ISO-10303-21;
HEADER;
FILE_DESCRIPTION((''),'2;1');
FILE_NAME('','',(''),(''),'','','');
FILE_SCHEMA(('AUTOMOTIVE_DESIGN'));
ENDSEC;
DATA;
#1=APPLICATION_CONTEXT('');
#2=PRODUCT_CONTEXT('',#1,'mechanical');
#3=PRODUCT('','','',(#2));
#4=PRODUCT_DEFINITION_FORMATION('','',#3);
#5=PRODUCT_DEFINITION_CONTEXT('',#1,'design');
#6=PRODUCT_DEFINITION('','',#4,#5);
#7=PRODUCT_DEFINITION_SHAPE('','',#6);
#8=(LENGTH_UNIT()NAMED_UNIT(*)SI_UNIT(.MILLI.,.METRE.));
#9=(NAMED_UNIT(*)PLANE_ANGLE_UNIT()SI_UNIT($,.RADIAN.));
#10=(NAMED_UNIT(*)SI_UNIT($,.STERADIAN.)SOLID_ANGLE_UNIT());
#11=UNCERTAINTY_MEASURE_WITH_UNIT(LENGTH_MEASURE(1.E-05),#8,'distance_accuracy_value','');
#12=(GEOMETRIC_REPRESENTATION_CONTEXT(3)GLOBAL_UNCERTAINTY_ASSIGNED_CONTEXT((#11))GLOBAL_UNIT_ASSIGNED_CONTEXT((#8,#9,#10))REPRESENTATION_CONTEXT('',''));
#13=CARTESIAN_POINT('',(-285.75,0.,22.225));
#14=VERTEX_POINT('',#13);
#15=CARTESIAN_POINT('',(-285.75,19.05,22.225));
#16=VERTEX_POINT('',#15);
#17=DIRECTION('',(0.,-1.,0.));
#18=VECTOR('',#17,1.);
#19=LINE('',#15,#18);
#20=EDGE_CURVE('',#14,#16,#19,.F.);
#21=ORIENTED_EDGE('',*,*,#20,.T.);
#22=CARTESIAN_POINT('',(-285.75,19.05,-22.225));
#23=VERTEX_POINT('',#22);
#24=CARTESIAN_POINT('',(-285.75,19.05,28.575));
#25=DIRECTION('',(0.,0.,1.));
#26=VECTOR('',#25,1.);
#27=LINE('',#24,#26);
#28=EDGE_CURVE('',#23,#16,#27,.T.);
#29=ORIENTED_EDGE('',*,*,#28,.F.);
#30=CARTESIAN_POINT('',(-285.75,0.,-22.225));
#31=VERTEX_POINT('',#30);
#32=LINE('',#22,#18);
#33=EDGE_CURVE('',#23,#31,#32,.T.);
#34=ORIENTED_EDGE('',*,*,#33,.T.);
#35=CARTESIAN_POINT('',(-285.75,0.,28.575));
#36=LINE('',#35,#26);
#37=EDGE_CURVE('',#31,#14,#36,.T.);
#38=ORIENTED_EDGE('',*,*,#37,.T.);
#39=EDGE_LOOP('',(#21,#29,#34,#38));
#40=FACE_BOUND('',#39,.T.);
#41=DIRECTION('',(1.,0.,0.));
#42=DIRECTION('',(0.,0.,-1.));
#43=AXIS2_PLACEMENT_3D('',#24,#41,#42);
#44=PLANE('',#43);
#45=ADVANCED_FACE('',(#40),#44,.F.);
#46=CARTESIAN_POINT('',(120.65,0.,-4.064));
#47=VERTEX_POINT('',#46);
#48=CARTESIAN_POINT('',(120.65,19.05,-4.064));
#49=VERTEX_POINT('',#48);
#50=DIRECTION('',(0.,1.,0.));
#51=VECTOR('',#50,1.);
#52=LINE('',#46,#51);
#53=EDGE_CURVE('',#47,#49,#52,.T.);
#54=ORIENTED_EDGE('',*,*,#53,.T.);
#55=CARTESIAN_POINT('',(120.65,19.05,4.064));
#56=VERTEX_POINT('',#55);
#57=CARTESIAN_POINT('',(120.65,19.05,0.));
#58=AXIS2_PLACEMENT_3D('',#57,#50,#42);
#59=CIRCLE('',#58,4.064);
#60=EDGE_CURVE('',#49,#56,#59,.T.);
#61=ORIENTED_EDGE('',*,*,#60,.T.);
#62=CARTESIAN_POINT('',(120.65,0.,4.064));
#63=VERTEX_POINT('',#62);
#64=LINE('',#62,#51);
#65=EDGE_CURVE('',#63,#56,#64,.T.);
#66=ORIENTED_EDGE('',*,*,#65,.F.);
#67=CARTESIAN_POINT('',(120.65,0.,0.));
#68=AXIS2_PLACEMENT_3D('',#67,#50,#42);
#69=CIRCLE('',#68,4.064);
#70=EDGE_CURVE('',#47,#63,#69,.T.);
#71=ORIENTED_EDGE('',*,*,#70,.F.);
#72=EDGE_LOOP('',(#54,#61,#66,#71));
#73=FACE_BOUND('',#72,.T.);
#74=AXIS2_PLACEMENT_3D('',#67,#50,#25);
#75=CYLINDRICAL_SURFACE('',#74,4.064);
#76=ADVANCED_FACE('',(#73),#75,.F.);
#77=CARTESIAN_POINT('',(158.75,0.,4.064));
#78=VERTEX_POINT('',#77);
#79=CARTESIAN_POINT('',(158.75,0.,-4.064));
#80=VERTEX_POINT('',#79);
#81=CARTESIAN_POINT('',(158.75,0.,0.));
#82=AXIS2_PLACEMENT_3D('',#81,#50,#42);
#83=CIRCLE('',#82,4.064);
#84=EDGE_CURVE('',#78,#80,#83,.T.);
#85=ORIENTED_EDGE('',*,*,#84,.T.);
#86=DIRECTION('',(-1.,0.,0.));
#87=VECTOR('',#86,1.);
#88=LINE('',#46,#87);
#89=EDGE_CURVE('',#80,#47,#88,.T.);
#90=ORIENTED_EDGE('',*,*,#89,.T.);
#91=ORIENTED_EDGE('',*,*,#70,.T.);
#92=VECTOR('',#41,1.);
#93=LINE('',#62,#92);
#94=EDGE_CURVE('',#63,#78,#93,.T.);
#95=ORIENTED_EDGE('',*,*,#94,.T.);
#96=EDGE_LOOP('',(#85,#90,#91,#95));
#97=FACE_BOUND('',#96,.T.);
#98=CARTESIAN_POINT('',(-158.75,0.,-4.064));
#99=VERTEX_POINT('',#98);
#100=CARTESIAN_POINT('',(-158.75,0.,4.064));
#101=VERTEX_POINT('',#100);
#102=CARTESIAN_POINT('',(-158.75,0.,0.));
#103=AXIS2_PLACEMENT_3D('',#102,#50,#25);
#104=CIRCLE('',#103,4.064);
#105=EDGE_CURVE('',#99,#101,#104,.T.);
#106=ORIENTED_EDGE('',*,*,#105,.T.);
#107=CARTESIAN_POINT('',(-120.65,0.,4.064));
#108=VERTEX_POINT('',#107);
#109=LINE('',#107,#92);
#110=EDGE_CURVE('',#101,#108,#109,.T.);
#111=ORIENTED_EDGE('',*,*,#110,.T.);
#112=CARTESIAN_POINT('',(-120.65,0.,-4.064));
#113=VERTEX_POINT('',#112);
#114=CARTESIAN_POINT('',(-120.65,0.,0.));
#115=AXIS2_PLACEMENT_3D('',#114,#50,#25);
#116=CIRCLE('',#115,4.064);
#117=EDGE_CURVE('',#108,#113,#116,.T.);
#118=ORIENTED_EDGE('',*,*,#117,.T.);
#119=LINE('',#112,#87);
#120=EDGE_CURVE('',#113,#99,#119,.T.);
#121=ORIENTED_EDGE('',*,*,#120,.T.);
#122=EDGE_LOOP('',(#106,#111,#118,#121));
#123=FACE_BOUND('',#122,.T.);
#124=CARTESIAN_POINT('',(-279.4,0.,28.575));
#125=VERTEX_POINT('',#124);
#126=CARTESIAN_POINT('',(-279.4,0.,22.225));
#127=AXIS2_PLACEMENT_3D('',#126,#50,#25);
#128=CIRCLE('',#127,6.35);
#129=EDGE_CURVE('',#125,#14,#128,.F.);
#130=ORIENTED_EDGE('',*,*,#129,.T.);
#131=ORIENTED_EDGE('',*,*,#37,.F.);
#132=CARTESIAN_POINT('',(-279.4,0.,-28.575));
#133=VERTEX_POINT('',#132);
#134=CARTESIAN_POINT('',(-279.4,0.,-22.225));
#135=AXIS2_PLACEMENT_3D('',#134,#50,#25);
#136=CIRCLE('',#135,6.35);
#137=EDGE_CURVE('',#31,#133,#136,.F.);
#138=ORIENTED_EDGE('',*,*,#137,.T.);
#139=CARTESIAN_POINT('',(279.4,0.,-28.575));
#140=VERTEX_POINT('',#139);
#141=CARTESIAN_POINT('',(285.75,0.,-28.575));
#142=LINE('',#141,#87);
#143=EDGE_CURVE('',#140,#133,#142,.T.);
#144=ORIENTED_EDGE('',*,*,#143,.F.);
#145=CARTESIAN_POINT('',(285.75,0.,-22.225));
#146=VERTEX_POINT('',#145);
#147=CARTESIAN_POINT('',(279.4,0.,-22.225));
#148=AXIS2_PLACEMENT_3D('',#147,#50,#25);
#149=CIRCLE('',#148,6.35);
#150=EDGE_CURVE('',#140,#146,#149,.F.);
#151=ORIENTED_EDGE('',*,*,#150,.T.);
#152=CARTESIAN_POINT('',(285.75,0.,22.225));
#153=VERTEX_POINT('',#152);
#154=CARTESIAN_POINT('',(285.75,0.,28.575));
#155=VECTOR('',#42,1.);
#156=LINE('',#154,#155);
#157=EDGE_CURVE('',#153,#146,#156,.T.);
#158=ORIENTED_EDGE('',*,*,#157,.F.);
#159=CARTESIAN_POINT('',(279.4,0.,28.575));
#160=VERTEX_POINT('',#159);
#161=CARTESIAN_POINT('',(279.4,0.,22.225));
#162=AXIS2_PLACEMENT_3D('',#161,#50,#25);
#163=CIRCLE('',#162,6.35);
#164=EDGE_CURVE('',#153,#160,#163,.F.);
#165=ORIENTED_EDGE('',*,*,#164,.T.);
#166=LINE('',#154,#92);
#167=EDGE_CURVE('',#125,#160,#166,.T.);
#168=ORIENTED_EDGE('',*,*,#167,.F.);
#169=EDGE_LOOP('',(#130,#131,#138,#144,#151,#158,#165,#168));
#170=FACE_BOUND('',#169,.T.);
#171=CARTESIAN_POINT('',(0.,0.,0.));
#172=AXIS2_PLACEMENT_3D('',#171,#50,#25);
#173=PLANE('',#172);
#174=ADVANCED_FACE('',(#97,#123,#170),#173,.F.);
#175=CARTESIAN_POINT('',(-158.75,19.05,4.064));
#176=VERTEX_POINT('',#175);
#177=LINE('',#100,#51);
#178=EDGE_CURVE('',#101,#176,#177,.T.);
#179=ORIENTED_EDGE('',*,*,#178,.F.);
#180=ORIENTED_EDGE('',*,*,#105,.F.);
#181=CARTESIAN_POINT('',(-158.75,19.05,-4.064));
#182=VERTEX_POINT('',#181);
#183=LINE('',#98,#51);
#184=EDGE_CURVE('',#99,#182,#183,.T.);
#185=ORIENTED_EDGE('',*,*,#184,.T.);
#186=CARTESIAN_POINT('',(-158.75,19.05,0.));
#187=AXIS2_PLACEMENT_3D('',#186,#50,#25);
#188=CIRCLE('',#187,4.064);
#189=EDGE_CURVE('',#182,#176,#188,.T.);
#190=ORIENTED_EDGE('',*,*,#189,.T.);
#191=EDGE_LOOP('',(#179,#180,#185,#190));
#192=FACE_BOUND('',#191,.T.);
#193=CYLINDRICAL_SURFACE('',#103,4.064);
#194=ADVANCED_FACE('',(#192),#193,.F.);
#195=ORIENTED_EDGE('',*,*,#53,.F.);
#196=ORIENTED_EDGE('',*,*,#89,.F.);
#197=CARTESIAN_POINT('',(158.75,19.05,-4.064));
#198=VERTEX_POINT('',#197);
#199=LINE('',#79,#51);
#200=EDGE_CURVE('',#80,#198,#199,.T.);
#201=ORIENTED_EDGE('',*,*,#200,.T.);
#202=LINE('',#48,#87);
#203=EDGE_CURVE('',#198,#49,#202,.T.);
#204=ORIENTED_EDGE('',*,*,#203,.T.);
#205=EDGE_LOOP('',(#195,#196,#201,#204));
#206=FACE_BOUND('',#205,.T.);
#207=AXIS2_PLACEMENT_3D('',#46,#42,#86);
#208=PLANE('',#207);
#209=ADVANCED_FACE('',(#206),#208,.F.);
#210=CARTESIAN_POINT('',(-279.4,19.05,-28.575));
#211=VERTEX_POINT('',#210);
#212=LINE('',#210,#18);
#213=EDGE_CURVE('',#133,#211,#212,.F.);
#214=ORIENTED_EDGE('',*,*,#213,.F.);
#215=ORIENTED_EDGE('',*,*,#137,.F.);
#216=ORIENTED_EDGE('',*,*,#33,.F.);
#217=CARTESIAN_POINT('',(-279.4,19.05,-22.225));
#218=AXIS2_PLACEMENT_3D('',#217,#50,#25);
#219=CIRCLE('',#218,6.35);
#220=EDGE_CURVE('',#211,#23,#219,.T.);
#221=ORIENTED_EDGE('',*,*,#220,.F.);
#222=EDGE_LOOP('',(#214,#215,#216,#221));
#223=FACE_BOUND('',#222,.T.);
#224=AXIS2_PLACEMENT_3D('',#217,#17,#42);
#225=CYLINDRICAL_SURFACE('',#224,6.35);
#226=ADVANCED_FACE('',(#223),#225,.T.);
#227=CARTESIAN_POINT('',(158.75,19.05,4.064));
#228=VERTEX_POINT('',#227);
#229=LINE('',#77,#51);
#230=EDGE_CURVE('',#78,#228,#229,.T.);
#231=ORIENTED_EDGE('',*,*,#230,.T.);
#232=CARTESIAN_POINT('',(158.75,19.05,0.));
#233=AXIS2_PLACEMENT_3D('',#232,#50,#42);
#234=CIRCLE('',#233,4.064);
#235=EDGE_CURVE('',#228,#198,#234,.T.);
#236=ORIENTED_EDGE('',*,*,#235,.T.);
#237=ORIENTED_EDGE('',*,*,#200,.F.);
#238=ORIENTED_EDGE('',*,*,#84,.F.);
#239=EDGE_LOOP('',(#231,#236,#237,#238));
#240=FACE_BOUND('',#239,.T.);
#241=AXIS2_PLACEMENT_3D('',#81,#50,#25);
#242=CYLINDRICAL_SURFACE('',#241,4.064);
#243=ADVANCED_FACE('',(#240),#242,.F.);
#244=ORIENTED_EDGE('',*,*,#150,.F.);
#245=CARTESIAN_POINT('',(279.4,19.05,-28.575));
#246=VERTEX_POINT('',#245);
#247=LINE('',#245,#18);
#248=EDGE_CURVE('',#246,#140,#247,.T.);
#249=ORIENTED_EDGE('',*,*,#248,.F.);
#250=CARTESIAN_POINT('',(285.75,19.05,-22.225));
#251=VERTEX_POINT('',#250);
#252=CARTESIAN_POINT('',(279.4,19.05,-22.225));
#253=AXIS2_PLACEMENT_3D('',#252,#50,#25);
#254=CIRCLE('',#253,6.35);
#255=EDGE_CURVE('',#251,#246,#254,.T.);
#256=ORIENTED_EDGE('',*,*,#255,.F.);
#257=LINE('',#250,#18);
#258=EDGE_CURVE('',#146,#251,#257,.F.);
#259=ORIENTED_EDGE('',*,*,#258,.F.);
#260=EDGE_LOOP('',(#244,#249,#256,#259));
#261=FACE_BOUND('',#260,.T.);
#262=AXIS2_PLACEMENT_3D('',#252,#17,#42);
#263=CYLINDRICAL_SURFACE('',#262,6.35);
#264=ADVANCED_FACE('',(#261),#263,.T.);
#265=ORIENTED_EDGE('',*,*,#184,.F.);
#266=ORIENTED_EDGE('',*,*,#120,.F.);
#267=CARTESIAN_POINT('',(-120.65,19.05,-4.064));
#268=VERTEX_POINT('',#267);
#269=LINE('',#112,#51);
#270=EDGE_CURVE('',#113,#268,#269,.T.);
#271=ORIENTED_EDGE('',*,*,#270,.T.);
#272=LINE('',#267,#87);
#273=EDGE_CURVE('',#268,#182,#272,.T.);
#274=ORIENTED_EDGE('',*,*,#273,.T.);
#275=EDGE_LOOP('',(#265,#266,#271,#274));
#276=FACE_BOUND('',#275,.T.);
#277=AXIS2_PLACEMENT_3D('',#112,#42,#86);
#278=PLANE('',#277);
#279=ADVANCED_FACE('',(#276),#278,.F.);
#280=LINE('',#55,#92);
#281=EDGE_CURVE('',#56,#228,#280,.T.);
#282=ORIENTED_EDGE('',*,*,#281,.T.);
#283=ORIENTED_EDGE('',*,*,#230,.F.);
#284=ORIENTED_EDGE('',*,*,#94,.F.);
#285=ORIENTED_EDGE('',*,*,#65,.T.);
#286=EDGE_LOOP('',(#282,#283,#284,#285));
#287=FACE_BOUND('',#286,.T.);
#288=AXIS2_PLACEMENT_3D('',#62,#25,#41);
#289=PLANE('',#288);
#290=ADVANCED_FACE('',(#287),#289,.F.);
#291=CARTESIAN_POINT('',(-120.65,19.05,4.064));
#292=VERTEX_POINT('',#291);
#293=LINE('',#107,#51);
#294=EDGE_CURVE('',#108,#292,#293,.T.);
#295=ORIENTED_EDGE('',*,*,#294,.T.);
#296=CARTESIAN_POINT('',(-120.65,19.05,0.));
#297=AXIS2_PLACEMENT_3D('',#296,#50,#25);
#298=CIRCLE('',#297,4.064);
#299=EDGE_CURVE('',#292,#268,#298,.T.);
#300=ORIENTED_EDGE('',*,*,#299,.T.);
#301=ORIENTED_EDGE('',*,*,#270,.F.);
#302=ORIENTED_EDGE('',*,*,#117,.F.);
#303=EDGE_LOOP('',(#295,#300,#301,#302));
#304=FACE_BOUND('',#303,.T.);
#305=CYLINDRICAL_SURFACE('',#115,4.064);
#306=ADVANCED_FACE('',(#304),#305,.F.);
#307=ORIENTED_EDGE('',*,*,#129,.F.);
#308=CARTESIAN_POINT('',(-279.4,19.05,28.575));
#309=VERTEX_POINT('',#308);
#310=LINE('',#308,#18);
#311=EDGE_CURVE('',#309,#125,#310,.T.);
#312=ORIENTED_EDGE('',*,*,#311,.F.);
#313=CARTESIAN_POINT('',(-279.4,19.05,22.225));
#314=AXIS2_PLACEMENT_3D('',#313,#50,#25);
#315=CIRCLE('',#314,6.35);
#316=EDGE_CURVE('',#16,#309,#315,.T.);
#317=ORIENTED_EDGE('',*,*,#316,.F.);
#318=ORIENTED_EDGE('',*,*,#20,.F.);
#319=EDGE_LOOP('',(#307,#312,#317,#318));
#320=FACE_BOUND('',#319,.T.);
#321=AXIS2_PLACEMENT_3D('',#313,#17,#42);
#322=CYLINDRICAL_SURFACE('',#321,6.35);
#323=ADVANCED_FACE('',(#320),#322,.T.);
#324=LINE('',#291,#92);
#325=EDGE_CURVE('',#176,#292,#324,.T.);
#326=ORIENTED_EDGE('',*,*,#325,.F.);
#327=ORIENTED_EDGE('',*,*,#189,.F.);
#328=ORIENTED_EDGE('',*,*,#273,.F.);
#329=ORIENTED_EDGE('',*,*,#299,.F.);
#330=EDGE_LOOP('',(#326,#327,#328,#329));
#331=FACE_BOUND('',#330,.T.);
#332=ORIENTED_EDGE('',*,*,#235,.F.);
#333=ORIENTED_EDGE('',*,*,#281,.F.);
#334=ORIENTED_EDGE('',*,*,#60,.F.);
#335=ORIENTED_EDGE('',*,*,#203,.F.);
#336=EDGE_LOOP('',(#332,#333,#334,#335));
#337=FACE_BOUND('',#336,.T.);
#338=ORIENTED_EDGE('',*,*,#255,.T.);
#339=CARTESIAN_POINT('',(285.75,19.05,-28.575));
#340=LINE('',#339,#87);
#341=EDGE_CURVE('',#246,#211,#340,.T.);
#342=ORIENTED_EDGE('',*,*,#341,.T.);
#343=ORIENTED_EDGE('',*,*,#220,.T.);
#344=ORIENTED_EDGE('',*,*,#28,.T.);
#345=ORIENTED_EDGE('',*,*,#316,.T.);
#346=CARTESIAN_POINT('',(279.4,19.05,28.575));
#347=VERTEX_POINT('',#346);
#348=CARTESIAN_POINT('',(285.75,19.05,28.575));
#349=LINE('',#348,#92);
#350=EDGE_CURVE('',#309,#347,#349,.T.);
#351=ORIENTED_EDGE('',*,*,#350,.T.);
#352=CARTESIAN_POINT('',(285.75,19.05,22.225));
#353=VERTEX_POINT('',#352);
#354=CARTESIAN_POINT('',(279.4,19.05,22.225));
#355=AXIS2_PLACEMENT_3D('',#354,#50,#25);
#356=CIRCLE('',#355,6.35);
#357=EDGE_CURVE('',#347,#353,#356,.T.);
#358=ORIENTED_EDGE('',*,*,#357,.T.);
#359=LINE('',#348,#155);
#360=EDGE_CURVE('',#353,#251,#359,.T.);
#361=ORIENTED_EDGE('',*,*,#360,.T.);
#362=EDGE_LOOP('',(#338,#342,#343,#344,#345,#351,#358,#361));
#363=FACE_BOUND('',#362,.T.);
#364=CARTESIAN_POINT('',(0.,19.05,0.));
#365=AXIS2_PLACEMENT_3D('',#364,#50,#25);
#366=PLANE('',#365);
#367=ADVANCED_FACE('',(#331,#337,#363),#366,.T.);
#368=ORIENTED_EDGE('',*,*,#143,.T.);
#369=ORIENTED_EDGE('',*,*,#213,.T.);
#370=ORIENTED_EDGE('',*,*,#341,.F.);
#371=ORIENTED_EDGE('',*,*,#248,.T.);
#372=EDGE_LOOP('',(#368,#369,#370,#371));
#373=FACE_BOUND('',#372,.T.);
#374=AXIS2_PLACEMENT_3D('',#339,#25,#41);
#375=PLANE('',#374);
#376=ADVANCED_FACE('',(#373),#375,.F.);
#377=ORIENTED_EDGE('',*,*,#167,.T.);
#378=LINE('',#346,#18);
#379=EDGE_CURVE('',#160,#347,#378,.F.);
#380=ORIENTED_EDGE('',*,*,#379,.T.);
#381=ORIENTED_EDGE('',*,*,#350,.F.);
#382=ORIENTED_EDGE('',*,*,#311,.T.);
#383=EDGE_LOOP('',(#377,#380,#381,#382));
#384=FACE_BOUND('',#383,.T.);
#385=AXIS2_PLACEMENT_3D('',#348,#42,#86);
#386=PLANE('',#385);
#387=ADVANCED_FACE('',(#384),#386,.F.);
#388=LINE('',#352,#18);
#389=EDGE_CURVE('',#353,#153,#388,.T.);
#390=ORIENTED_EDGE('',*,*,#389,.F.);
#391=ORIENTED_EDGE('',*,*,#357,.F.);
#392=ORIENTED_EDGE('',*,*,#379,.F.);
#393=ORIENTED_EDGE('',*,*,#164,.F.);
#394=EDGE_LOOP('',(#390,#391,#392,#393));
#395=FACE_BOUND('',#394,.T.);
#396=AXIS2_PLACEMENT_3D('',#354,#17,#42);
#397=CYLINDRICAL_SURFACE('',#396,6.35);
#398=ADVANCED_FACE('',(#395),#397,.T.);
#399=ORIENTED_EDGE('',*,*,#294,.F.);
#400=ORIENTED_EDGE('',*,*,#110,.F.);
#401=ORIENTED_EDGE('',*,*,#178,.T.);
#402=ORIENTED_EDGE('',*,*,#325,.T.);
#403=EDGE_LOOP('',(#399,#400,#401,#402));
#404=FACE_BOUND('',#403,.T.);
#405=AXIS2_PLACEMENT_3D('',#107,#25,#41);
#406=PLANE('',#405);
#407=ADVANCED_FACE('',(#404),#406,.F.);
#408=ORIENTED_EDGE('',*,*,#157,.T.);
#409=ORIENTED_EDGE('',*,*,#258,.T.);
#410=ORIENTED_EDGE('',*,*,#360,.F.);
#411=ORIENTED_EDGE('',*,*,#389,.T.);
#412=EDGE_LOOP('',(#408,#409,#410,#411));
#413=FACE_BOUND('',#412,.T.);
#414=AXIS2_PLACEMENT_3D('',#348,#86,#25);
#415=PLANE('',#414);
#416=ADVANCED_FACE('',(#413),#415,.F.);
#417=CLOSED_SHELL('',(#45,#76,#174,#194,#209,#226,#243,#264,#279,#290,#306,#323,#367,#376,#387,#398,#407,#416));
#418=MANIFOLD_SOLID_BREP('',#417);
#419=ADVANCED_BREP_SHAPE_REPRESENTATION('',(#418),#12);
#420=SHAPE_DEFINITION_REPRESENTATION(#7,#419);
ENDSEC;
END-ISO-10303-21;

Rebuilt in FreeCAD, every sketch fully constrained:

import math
import FreeCAD as App
import Part
import Sketcher
from FreeCAD import Vector
Q = App.Units.Quantity


def edges_at(feature, points):
    """Names of the edges that pass closest to the given points."""
    edges = feature.Shape.Edges
    near = lambda p: min(range(len(edges)), key=lambda i: edges[i].distToShape(Part.Vertex(*p))[0])
    return sorted({f"Edge{near(p) + 1}" for p in points})

doc = App.newDocument("Part")
body = doc.addObject("PartDesign::Body", "Body")

sketch1 = doc.addObject("Sketcher::SketchObject", "Sketch")
body.addObject(sketch1)
sketch1.AttachmentSupport = (doc.XZ_Plane, [""])
sketch1.MapMode = "FlatFace"
sketch1.addGeometry(Part.LineSegment(Vector(-286, -29, 0), Vector(-286, 29, 0)), False)
sketch1.addGeometry(Part.LineSegment(Vector(-286, 29, 0), Vector(286, 29, 0)), False)
sketch1.addGeometry(Part.LineSegment(Vector(286, 29, 0), Vector(286, -29, 0)), False)
sketch1.addGeometry(Part.LineSegment(Vector(286, -29, 0), Vector(-286, -29, 0)), False)
sketch1.addConstraint(Sketcher.Constraint("Coincident", 0, 2, 1, 1))
sketch1.addConstraint(Sketcher.Constraint("Coincident", 1, 2, 2, 1))
sketch1.addConstraint(Sketcher.Constraint("Coincident", 2, 2, 3, 1))
sketch1.addConstraint(Sketcher.Constraint("Coincident", 3, 2, 0, 1))
sketch1.addConstraint(Sketcher.Constraint("Vertical", 0))
sketch1.addConstraint(Sketcher.Constraint("Horizontal", 1))
sketch1.addConstraint(Sketcher.Constraint("Vertical", 2))
sketch1.addConstraint(Sketcher.Constraint("Horizontal", 3))
sketch1.addConstraint(Sketcher.Constraint("Symmetric", 0, 2, 2, 2, -1, 1))
sketch1.addConstraint(Sketcher.Constraint("DistanceX", 1, 1, 1, 2, Q("22.5 in")))
sketch1.addConstraint(Sketcher.Constraint("DistanceY", 0, 1, 0, 2, Q("2.25 in")))
pad1 = doc.addObject("PartDesign::Pad", "Pad")
body.addObject(pad1)
pad1.Profile = sketch1
pad1.Length = Q("0.75 in")
pad1.Reversed = True
doc.recompute()

fillet = doc.addObject("PartDesign::Fillet", "Fillet")
body.addObject(fillet)
fillet.Base = (pad1, edges_at(pad1, [
    (-285.75, 9.525, -28.575),
    (285.75, 9.525, -28.575),
    (285.75, 9.525, 28.575),
    (-285.75, 9.525, 28.575),
]))
fillet.Radius = Q("0.25 in")

sketch2 = doc.addObject("Sketcher::SketchObject", "Sketch001")
body.addObject(sketch2)
sketch2.AttachmentSupport = (doc.XZ_Plane, [""])
sketch2.MapMode = "FlatFace"
sketch2.AttachmentOffset = App.Placement(Vector(0, 0, -0.75 * 25.4), App.Rotation())
sketch2.addGeometry(Part.LineSegment(Vector(-158.8, 4.1, 0), Vector(-120.7, 4.1, 0)), False)
sketch2.addGeometry(Part.ArcOfCircle(Part.Circle(Vector(-120.7, 0, 0), Vector(0, 0, 1), 4.1), math.radians(-90), math.radians(90)), False)
sketch2.addGeometry(Part.LineSegment(Vector(-120.7, -4.1, 0), Vector(-158.8, -4.1, 0)), False)
sketch2.addGeometry(Part.ArcOfCircle(Part.Circle(Vector(-158.8, 0, 0), Vector(0, 0, 1), 4.1), math.radians(90), math.radians(270)), False)
sketch2.addGeometry(Part.LineSegment(Vector(120.7, 4.1, 0), Vector(158.8, 4.1, 0)), False)
sketch2.addGeometry(Part.ArcOfCircle(Part.Circle(Vector(158.8, 0, 0), Vector(0, 0, 1), 4.1), math.radians(-90), math.radians(90)), False)
sketch2.addGeometry(Part.LineSegment(Vector(158.8, -4.1, 0), Vector(120.7, -4.1, 0)), False)
sketch2.addGeometry(Part.ArcOfCircle(Part.Circle(Vector(120.7, 0, 0), Vector(0, 0, 1), 4.1), math.radians(90), math.radians(270)), False)
sketch2.addConstraint(Sketcher.Constraint("Tangent", 0, 2, 1, 2))
sketch2.addConstraint(Sketcher.Constraint("Tangent", 1, 1, 2, 1))
sketch2.addConstraint(Sketcher.Constraint("Tangent", 2, 2, 3, 2))
sketch2.addConstraint(Sketcher.Constraint("Tangent", 3, 1, 0, 1))
sketch2.addConstraint(Sketcher.Constraint("Tangent", 4, 2, 5, 2))
sketch2.addConstraint(Sketcher.Constraint("Tangent", 5, 1, 6, 1))
sketch2.addConstraint(Sketcher.Constraint("Tangent", 6, 2, 7, 2))
sketch2.addConstraint(Sketcher.Constraint("Tangent", 7, 1, 4, 1))
sketch2.addConstraint(Sketcher.Constraint("Horizontal", 0))
sketch2.addConstraint(Sketcher.Constraint("Horizontal", 2))
sketch2.addConstraint(Sketcher.Constraint("Horizontal", 4))
sketch2.addConstraint(Sketcher.Constraint("Horizontal", 6))
sketch2.addConstraint(Sketcher.Constraint("Equal", 3, 5))
sketch2.addConstraint(Sketcher.Constraint("Symmetric", 3, 3, 5, 3, -1, 1))
sketch2.addConstraint(Sketcher.Constraint("Symmetric", 1, 3, 7, 3, -2))
sketch2.addConstraint(Sketcher.Constraint("Radius", 1, Q("0.16 in")))
sketch2.addConstraint(Sketcher.Constraint("DistanceX", 0, 1, 0, 2, Q("1.5 in")))
sketch2.addConstraint(Sketcher.Constraint("DistanceX", 1, 3, 5, 3, Q("11 in")))
pocket1 = doc.addObject("PartDesign::Pocket", "Pocket")
body.addObject(pocket1)
pocket1.Profile = sketch2
pocket1.Length = Q("0.75 in")
pocket1.Reversed = True

doc.recompute()
